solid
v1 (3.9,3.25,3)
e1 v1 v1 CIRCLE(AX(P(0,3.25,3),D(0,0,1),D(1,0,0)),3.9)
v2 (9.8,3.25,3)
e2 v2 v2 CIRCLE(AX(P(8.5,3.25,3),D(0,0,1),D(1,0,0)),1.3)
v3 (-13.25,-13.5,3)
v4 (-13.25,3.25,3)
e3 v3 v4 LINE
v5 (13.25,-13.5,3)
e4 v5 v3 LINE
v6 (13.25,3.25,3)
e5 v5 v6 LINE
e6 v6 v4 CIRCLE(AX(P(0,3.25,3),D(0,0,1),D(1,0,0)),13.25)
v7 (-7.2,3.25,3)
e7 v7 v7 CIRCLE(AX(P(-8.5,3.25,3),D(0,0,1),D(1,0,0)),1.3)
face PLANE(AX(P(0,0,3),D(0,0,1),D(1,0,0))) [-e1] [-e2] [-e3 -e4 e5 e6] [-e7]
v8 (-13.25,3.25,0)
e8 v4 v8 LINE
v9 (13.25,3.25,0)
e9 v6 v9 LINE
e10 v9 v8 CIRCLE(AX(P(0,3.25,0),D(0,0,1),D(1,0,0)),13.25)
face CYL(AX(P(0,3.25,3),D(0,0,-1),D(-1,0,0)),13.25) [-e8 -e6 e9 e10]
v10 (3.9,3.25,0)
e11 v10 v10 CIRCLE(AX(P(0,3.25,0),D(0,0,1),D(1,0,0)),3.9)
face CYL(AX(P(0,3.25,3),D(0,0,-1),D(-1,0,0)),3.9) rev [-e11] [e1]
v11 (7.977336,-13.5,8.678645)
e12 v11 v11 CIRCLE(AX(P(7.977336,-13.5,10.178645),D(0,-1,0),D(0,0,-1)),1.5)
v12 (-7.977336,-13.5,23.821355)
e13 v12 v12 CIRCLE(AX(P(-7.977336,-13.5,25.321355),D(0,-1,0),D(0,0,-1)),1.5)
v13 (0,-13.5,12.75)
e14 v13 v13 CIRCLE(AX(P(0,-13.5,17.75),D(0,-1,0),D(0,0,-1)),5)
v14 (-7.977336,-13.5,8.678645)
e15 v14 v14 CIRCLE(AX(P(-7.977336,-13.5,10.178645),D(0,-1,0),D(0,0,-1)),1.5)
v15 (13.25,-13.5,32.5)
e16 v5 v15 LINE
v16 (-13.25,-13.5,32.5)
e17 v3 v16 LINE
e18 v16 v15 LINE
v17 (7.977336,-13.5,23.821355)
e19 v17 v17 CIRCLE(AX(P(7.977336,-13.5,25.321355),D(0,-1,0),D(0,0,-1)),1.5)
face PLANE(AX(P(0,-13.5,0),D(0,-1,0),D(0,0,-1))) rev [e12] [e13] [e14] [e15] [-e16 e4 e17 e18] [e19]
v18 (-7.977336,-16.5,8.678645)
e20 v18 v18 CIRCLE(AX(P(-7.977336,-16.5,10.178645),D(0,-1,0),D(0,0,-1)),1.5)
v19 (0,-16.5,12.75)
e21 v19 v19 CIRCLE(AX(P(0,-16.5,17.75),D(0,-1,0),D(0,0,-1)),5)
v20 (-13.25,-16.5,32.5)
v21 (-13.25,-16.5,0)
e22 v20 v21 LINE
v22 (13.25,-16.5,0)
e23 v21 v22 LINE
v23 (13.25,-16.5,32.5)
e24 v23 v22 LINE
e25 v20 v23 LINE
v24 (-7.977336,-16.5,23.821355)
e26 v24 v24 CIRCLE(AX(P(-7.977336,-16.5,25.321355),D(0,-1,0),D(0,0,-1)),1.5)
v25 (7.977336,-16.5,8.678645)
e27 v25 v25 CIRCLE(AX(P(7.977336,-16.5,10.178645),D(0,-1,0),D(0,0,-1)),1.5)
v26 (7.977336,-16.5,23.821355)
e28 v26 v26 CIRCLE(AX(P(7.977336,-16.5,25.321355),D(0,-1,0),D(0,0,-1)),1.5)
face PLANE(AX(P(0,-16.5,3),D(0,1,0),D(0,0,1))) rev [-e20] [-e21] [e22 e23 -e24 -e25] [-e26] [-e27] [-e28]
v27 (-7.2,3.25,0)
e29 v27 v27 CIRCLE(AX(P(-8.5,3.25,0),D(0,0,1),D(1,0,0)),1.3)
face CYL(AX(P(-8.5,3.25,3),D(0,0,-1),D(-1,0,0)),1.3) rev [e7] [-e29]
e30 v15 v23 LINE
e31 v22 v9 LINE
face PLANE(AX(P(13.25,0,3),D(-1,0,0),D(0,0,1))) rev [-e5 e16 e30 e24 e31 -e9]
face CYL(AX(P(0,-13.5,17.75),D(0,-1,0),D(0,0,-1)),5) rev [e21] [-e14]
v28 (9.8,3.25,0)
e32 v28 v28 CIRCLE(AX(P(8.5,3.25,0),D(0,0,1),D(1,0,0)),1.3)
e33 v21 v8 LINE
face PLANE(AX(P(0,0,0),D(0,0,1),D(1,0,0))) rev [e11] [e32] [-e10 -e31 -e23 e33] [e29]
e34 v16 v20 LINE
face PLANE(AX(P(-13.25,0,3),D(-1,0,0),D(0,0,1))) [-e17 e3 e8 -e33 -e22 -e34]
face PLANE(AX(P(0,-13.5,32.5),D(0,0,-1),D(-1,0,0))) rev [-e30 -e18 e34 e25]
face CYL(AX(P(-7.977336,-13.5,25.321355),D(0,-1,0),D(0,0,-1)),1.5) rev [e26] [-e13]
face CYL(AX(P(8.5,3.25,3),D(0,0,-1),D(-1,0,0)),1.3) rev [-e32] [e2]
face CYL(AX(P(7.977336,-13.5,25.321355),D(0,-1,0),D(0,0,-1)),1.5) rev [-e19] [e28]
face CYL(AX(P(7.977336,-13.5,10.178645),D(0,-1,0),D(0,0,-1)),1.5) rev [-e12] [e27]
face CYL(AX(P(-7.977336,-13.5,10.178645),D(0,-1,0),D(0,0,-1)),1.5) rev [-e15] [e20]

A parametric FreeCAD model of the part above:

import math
import FreeCAD as App
import Part
import Sketcher

V = App.Vector


def add_polygon(sketch, points):
    """Adds a closed chain of lines whose ends are joined by coincident constraints."""
    first, n = sketch.GeometryCount, len(points)
    for a, b in zip(points, points[1:] + points[:1]):
        sketch.addGeometry(Part.LineSegment(App.Vector(*a, 0), App.Vector(*b, 0)), False)
    for i in range(n):
        sketch.addConstraint(Sketcher.Constraint("Coincident", first + i, 2, first + (i + 1) % n, 1))

doc = App.newDocument("Part")
body = doc.addObject("PartDesign::Body", "Body")

sketch1 = doc.addObject("Sketcher::SketchObject", "Sketch")
body.addObject(sketch1)
sketch1.AttachmentSupport = (doc.XY_Plane, [""])
sketch1.MapMode = "FlatFace"
sketch1.addGeometry([
    Part.ArcOfCircle(Part.Circle(V(0, 3.25, 0), V(0, 0, 1), 13.25), math.radians(0), math.radians(180)),
    Part.LineSegment(V(-13.25, 3.25, 0), V(-13.25, -16.5, 0)),
    Part.LineSegment(V(-13.25, -16.5, 0), V(13.25, -16.5, 0)),
    Part.LineSegment(V(13.25, -16.5, 0), V(13.25, 3.25, 0)),
    Part.Circle(V(-8.5, 3.25, 0), V(0, 0, 1), 1.3),
    Part.Circle(V(0, 3.25, 0), V(0, 0, 1), 3.9),
    Part.Circle(V(8.5, 3.25, 0), V(0, 0, 1), 1.3),
], False)
sketch1.addConstraint([
    Sketcher.Constraint("Tangent", 0, 2, 1, 1),
    Sketcher.Constraint("Coincident", 1, 2, 2, 1),
    Sketcher.Constraint("Coincident", 2, 2, 3, 1),
    Sketcher.Constraint("Tangent", 3, 2, 0, 1),
    Sketcher.Constraint("Vertical", 1),
    Sketcher.Constraint("Horizontal", 2),
    Sketcher.Constraint("Vertical", 3),
    Sketcher.Constraint("Coincident", 5, 3, 0, 3),
    Sketcher.Constraint("Equal", 4, 6),
    Sketcher.Constraint("Symmetric", 4, 3, 6, 3, -2),
    Sketcher.Constraint("PointOnObject", 0, 3, -2),
    Sketcher.Constraint("Horizontal", 0, 3, 4, 3),
    Sketcher.Constraint("Diameter", 4, 2.6),
    Sketcher.Constraint("Diameter", 5, 7.8),
    Sketcher.Constraint("Radius", 0, 13.25),
    Sketcher.Constraint("DistanceX", 4, 3, 6, 3, 17.0),
    Sketcher.Constraint("DistanceY", 1, 2, 1, 1, 19.75),
    Sketcher.Constraint("DistanceY", 1, 2, -1, 1, 16.5),
])
pad1 = doc.addObject("PartDesign::Pad", "Pad")
body.addObject(pad1)
pad1.Profile = sketch1
pad1.Length = 3

sketch2 = doc.addObject("Sketcher::SketchObject", "Sketch001")
body.addObject(sketch2)
sketch2.AttachmentSupport = (doc.XZ_Plane, [""])
sketch2.MapMode = "FlatFace"
sketch2.AttachmentOffset = App.Placement(V(0, 0, 16.5), App.Rotation())
add_polygon(sketch2, [(-13.25, 32.5), (-13.25, 3), (13.25, 3), (13.25, 32.5)])
sketch2.addGeometry(Part.ArcOfCircle(Part.Circle(V(-7.977336, 10.178645, 0), V(0, 0, 1), 1.5), math.radians(90), math.radians(360)), False)
sketch2.addGeometry(Part.ArcOfCircle(Part.Circle(V(-7.977336, 10.178645, 0), V(0, 0, 1), 1.5), math.radians(0), math.radians(90)), False)
sketch2.addGeometry(Part.ArcOfCircle(Part.Circle(V(-7.977336, 25.321355, 0), V(0, 0, 1), 1.5), math.radians(0), math.radians(270)), False)
sketch2.addGeometry(Part.ArcOfCircle(Part.Circle(V(-7.977336, 25.321355, 0), V(0, 0, 1), 1.5), math.radians(-90), math.radians(0)), False)
sketch2.addGeometry(Part.ArcOfCircle(Part.Circle(V(0, 17.75, 0), V(0, 0, 1), 5), math.radians(0), math.radians(90)), False)
sketch2.addGeometry(Part.ArcOfCircle(Part.Circle(V(0, 17.75, 0), V(0, 0, 1), 5), math.radians(-90), math.radians(0)), False)
sketch2.addGeometry(Part.ArcOfCircle(Part.Circle(V(0, 17.75, 0), V(0, 0, 1), 5), math.radians(90), math.radians(270)), False)
sketch2.addGeometry(Part.ArcOfCircle(Part.Circle(V(7.977336, 25.321355, 0), V(0, 0, 1), 1.5), math.radians(0), math.radians(180)), False)
sketch2.addGeometry(Part.ArcOfCircle(Part.Circle(V(7.977336, 25.321355, 0), V(0, 0, 1), 1.5), math.radians(-90), math.radians(0)), False)
sketch2.addGeometry(Part.ArcOfCircle(Part.Circle(V(7.977336, 25.321355, 0), V(0, 0, 1), 1.5), math.radians(180), math.radians(270)), False)
sketch2.addGeometry(Part.ArcOfCircle(Part.Circle(V(7.977336, 10.178645, 0), V(0, 0, 1), 1.5), math.radians(0), math.radians(90)), False)
sketch2.addGeometry(Part.ArcOfCircle(Part.Circle(V(7.977336, 10.178645, 0), V(0, 0, 1), 1.5), math.radians(180), math.radians(360)), False)
sketch2.addGeometry(Part.ArcOfCircle(Part.Circle(V(7.977336, 10.178645, 0), V(0, 0, 1), 1.5), math.radians(90), math.radians(180)), False)
sketch2.addConstraint([
    Sketcher.Constraint("Tangent", 4, 1, 5, 2),
    Sketcher.Constraint("Coincident", 5, 1, 4, 2),
    Sketcher.Constraint("Tangent", 6, 1, 7, 2),
    Sketcher.Constraint("Coincident", 7, 1, 6, 2),
    Sketcher.Constraint("Tangent", 8, 1, 9, 2),
    Sketcher.Constraint("Tangent", 9, 1, 10, 2),
    Sketcher.Constraint("Tangent", 10, 1, 8, 2),
    Sketcher.Constraint("Tangent", 11, 1, 12, 2),
    Sketcher.Constraint("Tangent", 12, 1, 13, 2),
    Sketcher.Constraint("Tangent", 13, 1, 11, 2),
    Sketcher.Constraint("Tangent", 14, 1, 15, 2),
    Sketcher.Constraint("Tangent", 15, 1, 16, 2),
    Sketcher.Constraint("Tangent", 16, 1, 14, 2),
    Sketcher.Constraint("Vertical", 0),
    Sketcher.Constraint("Horizontal", 1),
    Sketcher.Constraint("Vertical", 2),
    Sketcher.Constraint("Horizontal", 3),
    Sketcher.Constraint("Equal", 5, 6),
    Sketcher.Constraint("Equal", 7, 11),
    Sketcher.Constraint("Equal", 13, 14),
    Sketcher.Constraint("Symmetric", 6, 3, 11, 3, -2),
    Sketcher.Constraint("Symmetric", 4, 3, 14, 3, -2),
    Sketcher.Constraint("PointOnObject", 8, 3, -2),
    Sketcher.Constraint("PointOnObject", 9, 1, -2),
    Sketcher.Constraint("PointOnObject", 10, 1, -2),
    Sketcher.Constraint("Horizontal", 16, 3, 5, 1),
    Sketcher.Constraint("Horizontal", 13, 3, 6, 1),
    Sketcher.Constraint("Horizontal", 10, 3, 8, 1),
    Sketcher.Constraint("Horizontal", 6, 1, 11, 1),
    Sketcher.Constraint("Horizontal", 11, 1, 13, 1),
    Sketcher.Constraint("Horizontal", 5, 1, 14, 1),
    Sketcher.Constraint("Horizontal", 14, 1, 15, 1),
    Sketcher.Constraint("Vertical", 5, 3, 6, 3),
    Sketcher.Constraint("Vertical", 7, 3, 4, 1),
    Sketcher.Constraint("Vertical", 4, 1, 7, 1),
    Sketcher.Constraint("Vertical", 16, 3, 12, 1),
    Sketcher.Constraint("Vertical", 12, 1, 16, 1),
    Sketcher.Constraint("Radius", 8, 5.0),
    Sketcher.Constraint("Radius", 4, 1.5),
    Sketcher.Constraint("DistanceX", 1, 1, 1, 2, 26.5),
    Sketcher.Constraint("DistanceY", 0, 2, 0, 1, 29.5),
    Sketcher.Constraint("DistanceY", -1, 1, 0, 2, 3.0),
    Sketcher.Constraint("DistanceY", -1, 1, 8, 3, 17.75),
    Sketcher.Constraint("DistanceX", 0, 2, -1, 1, 13.25),
    Sketcher.Constraint("DistanceY", 5, 3, 6, 3, 15.142711),
    Sketcher.Constraint("DistanceX", 7, 3, 11, 3, 15.954672),
    Sketcher.Constraint("DistanceY", -1, 1, 4, 3, 10.178645),
])
pad2 = doc.addObject("PartDesign::Pad", "Pad001")
body.addObject(pad2)
pad2.Profile = sketch2
pad2.Length = 3
pad2.Reversed = True

doc.recompute()
